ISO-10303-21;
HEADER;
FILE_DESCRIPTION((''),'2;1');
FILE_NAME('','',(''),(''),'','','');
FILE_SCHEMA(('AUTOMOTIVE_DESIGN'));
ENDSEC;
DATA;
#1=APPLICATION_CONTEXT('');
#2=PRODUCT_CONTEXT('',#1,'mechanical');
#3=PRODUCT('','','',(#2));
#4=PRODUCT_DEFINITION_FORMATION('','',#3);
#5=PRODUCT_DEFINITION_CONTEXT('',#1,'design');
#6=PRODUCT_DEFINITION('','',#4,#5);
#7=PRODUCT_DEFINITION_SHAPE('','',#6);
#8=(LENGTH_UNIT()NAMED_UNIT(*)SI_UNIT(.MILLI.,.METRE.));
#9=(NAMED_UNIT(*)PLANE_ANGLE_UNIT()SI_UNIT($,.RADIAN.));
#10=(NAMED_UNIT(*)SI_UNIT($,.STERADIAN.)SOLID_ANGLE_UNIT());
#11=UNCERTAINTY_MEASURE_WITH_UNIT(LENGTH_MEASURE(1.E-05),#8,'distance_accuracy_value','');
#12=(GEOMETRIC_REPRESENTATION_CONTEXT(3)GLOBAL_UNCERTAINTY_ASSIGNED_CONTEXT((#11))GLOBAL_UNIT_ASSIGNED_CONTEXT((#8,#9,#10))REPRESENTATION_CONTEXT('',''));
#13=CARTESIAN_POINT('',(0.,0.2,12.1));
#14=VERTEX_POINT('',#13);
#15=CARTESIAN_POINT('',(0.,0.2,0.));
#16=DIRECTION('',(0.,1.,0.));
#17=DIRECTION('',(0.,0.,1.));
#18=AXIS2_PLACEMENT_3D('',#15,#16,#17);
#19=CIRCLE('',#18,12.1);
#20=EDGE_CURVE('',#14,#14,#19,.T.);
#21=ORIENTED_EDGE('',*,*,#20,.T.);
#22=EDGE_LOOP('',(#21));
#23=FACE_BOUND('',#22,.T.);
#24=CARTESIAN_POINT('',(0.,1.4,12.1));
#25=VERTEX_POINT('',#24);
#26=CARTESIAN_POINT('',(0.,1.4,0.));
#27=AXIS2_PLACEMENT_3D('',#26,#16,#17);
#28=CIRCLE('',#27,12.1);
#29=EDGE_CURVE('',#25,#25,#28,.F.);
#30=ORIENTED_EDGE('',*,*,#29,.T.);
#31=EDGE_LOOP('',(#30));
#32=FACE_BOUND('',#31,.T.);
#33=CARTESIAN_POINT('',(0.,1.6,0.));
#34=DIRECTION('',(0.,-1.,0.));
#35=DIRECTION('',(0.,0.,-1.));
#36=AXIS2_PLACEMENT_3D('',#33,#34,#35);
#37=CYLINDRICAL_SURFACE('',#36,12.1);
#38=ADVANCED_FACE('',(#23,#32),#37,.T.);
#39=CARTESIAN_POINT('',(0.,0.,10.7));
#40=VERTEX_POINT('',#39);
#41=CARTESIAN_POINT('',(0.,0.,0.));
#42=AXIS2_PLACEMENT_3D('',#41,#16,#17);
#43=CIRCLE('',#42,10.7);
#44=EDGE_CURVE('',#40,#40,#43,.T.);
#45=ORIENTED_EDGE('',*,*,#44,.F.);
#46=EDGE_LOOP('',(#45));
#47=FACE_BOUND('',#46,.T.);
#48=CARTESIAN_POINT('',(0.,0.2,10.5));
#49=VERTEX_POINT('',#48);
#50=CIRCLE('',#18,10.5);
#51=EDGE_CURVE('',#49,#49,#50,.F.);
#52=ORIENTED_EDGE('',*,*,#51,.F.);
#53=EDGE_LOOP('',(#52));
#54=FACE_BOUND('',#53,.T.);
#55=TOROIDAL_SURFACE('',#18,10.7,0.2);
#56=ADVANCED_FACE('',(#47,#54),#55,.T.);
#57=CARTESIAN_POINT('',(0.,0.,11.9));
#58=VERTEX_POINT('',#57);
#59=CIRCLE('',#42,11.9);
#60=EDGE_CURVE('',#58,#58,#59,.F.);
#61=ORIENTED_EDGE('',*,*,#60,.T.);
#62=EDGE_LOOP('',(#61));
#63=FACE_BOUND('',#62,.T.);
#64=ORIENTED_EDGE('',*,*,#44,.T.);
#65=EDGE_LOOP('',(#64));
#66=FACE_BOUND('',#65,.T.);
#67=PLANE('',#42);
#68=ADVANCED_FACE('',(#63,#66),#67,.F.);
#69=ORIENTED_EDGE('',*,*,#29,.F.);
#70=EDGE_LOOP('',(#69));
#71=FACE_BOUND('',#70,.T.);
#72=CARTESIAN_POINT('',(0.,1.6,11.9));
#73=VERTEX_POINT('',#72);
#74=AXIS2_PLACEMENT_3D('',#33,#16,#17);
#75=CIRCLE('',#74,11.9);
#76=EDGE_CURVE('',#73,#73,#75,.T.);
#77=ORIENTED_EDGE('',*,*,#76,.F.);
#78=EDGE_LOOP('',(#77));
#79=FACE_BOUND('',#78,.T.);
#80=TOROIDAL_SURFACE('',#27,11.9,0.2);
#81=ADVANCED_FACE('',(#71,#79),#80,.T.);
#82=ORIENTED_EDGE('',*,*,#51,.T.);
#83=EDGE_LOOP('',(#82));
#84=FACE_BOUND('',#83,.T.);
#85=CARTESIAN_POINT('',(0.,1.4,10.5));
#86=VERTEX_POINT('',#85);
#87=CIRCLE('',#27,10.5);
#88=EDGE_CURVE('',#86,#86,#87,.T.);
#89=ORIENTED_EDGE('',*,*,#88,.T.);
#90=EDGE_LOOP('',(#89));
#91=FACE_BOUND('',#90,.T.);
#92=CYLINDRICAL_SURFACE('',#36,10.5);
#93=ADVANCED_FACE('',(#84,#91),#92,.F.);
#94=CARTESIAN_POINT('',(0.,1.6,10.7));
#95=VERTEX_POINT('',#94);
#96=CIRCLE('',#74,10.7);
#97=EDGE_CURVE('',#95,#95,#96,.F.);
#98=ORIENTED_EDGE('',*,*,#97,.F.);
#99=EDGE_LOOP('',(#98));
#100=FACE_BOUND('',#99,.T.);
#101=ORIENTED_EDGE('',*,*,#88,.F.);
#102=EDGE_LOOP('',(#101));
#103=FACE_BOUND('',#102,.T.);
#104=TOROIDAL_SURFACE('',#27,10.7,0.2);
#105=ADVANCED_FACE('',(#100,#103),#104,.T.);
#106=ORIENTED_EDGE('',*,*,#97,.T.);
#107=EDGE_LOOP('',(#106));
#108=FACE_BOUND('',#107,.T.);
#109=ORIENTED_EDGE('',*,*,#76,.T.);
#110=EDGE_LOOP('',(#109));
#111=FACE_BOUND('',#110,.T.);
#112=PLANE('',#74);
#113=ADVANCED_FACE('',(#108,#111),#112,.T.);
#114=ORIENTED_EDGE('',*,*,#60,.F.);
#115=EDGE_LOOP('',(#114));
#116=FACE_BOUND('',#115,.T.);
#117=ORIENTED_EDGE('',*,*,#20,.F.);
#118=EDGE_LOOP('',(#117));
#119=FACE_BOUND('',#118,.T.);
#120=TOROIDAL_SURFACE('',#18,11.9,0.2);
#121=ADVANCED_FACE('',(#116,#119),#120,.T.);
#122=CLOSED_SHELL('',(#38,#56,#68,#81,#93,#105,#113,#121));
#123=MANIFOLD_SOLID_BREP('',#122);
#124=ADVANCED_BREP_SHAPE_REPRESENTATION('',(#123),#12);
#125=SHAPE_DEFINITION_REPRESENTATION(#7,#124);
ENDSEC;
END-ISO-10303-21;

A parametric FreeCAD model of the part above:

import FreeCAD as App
import Part
import Sketcher
from FreeCAD import Vector
Q = App.Units.Quantity


def edges_at(feature, points):
    """Names of the edges that pass closest to the given points."""
    edges = feature.Shape.Edges
    near = lambda p: min(range(len(edges)), key=lambda i: edges[i].distToShape(Part.Vertex(*p))[0])
    return sorted({f"Edge{near(p) + 1}" for p in points})

doc = App.newDocument("Part")
body = doc.addObject("PartDesign::Body", "Body")

sketch1 = doc.addObject("Sketcher::SketchObject", "Sketch")
body.addObject(sketch1)
sketch1.AttachmentSupport = (doc.XZ_Plane, [""])
sketch1.MapMode = "FlatFace"
sketch1.addGeometry([
    Part.Circle(Vector(0, 0, 0), Vector(0, 0, 1), 12),
    Part.Circle(Vector(0, 0, 0), Vector(0, 0, 1), 10),
], False)
sketch1.addConstraint([
    Sketcher.Constraint("Coincident", 0, 3, -1, 1),
    Sketcher.Constraint("Coincident", 1, 3, -1, 1),
    Sketcher.Constraint("Diameter", 1, Q("21 mm")),
    Sketcher.Constraint("Diameter", 0, Q("24.2 mm")),
])
pad1 = doc.addObject("PartDesign::Pad", "Pad")
body.addObject(pad1)
pad1.Profile = sketch1
pad1.Length = 1.6
pad1.Reversed = True
doc.recompute()

fillet = doc.addObject("PartDesign::Fillet", "Fillet")
body.addObject(fillet)
fillet.Base = (pad1, edges_at(pad1, [
    (-12.1, 0, 0),
    (-10.5, 0, 0),
    (-12.1, 1.6, 0),
    (-10.5, 1.6, 0),
]))
fillet.Radius = 0.2

doc.recompute()
